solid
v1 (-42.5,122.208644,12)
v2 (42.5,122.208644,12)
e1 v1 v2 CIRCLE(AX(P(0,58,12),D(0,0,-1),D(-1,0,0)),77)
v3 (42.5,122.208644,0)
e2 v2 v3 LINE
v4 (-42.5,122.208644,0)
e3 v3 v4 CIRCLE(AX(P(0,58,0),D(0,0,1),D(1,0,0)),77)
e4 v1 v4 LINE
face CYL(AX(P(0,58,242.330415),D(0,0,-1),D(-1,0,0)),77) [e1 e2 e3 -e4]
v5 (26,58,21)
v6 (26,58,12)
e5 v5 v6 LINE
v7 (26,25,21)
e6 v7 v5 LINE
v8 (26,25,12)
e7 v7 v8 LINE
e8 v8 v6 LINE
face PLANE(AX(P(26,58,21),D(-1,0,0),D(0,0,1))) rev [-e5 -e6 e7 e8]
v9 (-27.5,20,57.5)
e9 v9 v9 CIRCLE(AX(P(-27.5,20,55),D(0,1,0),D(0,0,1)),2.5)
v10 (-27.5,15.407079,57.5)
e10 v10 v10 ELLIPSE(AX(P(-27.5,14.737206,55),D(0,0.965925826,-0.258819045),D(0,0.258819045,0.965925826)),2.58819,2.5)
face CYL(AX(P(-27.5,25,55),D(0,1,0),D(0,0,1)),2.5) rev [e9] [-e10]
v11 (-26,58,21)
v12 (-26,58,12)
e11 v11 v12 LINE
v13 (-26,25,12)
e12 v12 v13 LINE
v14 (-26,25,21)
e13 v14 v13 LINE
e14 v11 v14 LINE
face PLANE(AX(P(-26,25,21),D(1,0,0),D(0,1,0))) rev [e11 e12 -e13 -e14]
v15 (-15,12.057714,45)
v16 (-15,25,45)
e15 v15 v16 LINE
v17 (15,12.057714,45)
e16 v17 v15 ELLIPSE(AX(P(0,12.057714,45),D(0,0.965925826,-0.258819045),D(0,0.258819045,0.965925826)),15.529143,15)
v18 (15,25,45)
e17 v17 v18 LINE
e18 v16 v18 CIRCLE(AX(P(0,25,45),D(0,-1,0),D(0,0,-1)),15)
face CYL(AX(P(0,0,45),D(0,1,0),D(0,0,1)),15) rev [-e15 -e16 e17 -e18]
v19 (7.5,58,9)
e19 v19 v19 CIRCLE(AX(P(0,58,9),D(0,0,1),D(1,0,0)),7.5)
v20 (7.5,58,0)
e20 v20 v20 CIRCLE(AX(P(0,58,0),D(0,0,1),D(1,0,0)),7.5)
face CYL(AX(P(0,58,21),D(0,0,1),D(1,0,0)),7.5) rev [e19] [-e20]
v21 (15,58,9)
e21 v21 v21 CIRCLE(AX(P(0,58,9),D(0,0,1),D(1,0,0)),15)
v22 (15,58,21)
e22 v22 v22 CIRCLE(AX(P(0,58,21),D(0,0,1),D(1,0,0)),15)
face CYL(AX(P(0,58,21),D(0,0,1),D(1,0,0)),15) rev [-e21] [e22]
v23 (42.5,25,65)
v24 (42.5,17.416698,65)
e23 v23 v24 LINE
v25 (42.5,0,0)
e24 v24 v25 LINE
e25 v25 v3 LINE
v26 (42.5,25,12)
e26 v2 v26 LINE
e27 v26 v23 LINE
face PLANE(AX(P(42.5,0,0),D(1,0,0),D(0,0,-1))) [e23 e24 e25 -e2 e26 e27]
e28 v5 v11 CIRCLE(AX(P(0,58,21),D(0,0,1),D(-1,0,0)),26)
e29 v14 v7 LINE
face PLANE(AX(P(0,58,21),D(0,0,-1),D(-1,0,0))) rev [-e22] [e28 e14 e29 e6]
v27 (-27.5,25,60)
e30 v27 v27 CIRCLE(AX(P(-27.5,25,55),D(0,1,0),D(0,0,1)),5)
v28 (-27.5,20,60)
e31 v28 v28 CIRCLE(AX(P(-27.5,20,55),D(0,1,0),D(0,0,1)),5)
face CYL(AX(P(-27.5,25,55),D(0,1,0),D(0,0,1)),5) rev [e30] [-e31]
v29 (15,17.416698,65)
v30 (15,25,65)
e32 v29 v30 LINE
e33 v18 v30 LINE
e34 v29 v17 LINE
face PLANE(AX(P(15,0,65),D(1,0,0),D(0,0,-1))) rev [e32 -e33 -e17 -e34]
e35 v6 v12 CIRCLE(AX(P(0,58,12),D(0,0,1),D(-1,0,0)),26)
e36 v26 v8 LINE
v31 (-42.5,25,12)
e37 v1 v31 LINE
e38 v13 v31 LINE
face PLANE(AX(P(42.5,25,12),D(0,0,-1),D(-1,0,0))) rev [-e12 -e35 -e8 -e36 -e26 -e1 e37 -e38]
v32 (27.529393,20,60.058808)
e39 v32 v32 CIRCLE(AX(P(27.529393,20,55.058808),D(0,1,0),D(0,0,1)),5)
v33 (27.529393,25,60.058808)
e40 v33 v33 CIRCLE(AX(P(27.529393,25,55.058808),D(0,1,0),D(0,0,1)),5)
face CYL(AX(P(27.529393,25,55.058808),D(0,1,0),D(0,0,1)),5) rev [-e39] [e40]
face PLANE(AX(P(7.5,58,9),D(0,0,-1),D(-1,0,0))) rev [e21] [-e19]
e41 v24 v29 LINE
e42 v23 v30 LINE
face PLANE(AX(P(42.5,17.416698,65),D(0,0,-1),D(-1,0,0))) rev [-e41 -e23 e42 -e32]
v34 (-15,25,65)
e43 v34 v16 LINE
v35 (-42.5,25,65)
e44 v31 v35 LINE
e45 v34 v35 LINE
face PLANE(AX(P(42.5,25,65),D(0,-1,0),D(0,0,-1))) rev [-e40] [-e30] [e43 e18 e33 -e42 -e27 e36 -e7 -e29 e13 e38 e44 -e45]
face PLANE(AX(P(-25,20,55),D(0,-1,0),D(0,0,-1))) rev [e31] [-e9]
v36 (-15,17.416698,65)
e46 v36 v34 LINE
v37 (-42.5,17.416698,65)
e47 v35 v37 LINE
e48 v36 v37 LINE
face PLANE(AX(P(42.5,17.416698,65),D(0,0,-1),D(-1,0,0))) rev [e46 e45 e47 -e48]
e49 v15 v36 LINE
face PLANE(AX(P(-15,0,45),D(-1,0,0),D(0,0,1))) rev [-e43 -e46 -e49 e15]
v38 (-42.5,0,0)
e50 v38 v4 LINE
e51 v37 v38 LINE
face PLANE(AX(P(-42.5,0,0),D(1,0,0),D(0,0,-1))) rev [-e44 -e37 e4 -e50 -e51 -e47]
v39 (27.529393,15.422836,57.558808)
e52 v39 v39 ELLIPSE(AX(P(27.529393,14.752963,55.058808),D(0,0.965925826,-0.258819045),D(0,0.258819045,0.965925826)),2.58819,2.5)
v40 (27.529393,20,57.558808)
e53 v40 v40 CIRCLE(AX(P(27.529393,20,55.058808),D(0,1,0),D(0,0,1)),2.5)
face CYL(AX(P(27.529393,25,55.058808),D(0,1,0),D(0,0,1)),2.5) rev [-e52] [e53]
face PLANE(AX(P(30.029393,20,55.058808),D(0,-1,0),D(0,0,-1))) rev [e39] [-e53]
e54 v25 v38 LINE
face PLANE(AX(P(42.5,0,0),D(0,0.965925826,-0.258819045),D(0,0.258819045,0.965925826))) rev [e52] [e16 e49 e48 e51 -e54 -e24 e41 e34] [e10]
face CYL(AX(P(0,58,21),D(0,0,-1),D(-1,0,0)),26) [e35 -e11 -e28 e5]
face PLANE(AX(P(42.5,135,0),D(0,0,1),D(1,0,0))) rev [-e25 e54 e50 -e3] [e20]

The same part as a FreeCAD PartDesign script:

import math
import FreeCAD as App
import Part
import Sketcher

V = App.Vector
Q = App.Units.Quantity


def add_polygon(sketch, points):
    """Adds a closed chain of lines whose ends are joined by coincident constraints."""
    first, n = sketch.GeometryCount, len(points)
    for a, b in zip(points, points[1:] + points[:1]):
        sketch.addGeometry(Part.LineSegment(App.Vector(*a, 0), App.Vector(*b, 0)), False)
    for i in range(n):
        sketch.addConstraint(Sketcher.Constraint("Coincident", first + i, 2, first + (i + 1) % n, 1))

doc = App.newDocument("Part")
body = doc.addObject("PartDesign::Body", "Body")

sketch1 = body.newObject("Sketcher::SketchObject", "Sketch")
sketch1.AttachmentSupport = (doc.getObject("YZ_Plane"), [""])
sketch1.MapMode = "FlatFace"
add_polygon(sketch1, [(17, 65), (0, 0), (135, 0), (135, 12), (25, 12), (25, 65)])
sketch1.addConstraint([
    Sketcher.Constraint("Horizontal", 1),
    Sketcher.Constraint("Vertical", 2),
    Sketcher.Constraint("Horizontal", 3),
    Sketcher.Constraint("Vertical", 4),
    Sketcher.Constraint("Horizontal", 5),
    Sketcher.Constraint("Coincident", 0, 2, -1, 1),
    Sketcher.Constraint("DistanceX", 1, 1, 1, 2, Q("135 mm")),
    Sketcher.Constraint("DistanceX", 3, 2, 3, 1, Q("110 mm")),
    Sketcher.Constraint("DistanceY", 2, 1, 2, 2, Q("12 mm")),
    Sketcher.Constraint("DistanceY", 4, 1, 4, 2, Q("53 mm")),
    Sketcher.Constraint("Angle", 0, Q("-105 deg")),
])
pad1 = body.newObject("PartDesign::Pad", "Pad")
pad1.Profile = sketch1
pad1.Length = 85
pad1.Midplane = True

sketch2 = body.newObject("Sketcher::SketchObject", "Sketch001")
sketch2.AttachmentSupport = (doc.getObject("XY_Plane"), [""])
sketch2.MapMode = "FlatFace"
sketch2.AttachmentOffset = App.Placement(V(0, 0, 12), App.Rotation())
sketch2.addGeometry([
    Part.LineSegment(V(-299, -48, 0), V(-42, 122, 0)),
    Part.ArcOfCircle(Part.Circle(V(0, 58, 0), V(0, 0, 1), 77), math.radians(56), math.radians(124)),
    Part.LineSegment(V(42, 122, 0), V(299, -48, 0)),
    Part.LineSegment(V(299, -48, 0), V(299, 568, 0)),
    Part.LineSegment(V(299, 568, 0), V(-299, 568, 0)),
    Part.LineSegment(V(-299, 568, 0), V(-299, -48, 0)),
], False)
sketch2.addConstraint([
    Sketcher.Constraint("Tangent", 0, 2, 1, 2),
    Sketcher.Constraint("Tangent", 1, 1, 2, 1),
    Sketcher.Constraint("Coincident", 2, 2, 3, 1),
    Sketcher.Constraint("Coincident", 3, 2, 4, 1),
    Sketcher.Constraint("Coincident", 4, 2, 5, 1),
    Sketcher.Constraint("Coincident", 5, 2, 0, 1),
    Sketcher.Constraint("Vertical", 3),
    Sketcher.Constraint("Horizontal", 4),
    Sketcher.Constraint("Vertical", 5),
    Sketcher.Constraint("Symmetric", 0, 2, 1, 1, -2),
    Sketcher.Constraint("Horizontal", 2, 2, 5, 2),
    Sketcher.Constraint("Radius", 1, Q("77 mm")),
    Sketcher.Constraint("DistanceY", -1, 1, 1, 3, Q("58 mm")),
    Sketcher.Constraint("DistanceX", 0, 2, 1, 1, Q("85 mm")),
    Sketcher.Constraint("DistanceX", 4, 2, 4, 1, Q("598.2095 mm")),
    Sketcher.Constraint("DistanceY", 1, 1, 3, 2, Q("445.600899 mm")),
])
pocket1 = body.newObject("PartDesign::Pocket", "Pocket")
pocket1.Profile = sketch2
pocket1.Type = "ThroughAll"
pocket1.Midplane = True

sketch3 = body.newObject("Sketcher::SketchObject", "Sketch002")
sketch3.AttachmentSupport = (doc.getObject("XY_Plane"), [""])
sketch3.MapMode = "FlatFace"
sketch3.AttachmentOffset = App.Placement(V(0, 0, 12), App.Rotation())
sketch3.addGeometry([
    Part.LineSegment(V(-26, 58, 0), V(-26, 25, 0)),
    Part.LineSegment(V(-26, 25, 0), V(26, 25, 0)),
    Part.LineSegment(V(26, 25, 0), V(26, 58, 0)),
    Part.ArcOfCircle(Part.Circle(V(0, 58, 0), V(0, 0, 1), 26), math.radians(0), math.radians(180)),
], False)
sketch3.addConstraint([
    Sketcher.Constraint("Coincident", 0, 2, 1, 1),
    Sketcher.Constraint("Coincident", 1, 2, 2, 1),
    Sketcher.Constraint("Tangent", 2, 2, 3, 1),
    Sketcher.Constraint("Tangent", 3, 2, 0, 1),
    Sketcher.Constraint("Vertical", 0),
    Sketcher.Constraint("Horizontal", 1),
    Sketcher.Constraint("Vertical", 2),
    Sketcher.Constraint("PointOnObject", 3, 3, -2),
    Sketcher.Constraint("Radius", 3, Q("26 mm")),
    Sketcher.Constraint("DistanceY", 0, 2, 0, 1, Q("33 mm")),
    Sketcher.Constraint("DistanceY", -1, 1, 3, 3, Q("58 mm")),
])
pad2 = body.newObject("PartDesign::Pad", "Pad001")
pad2.Profile = sketch3
pad2.Length = 9

sketch4 = body.newObject("Sketcher::SketchObject", "Sketch003")
sketch4.AttachmentSupport = (doc.getObject("XY_Plane"), [""])
sketch4.MapMode = "FlatFace"
sketch4.AttachmentOffset = App.Placement(V(0, 0, 21), App.Rotation())
sketch4.addGeometry(Part.Circle(V(0, 58, 0), V(0, 0, 1), 8), False)
sketch4.addConstraint([
    Sketcher.Constraint("PointOnObject", 0, 3, -2),
    Sketcher.Constraint("Diameter", 0, Q("15 mm")),
    Sketcher.Constraint("DistanceY", -1, 1, 0, 3, Q("58 mm")),
])
doc.recompute()
hole = body.newObject("PartDesign::Hole", "Hole")
hole.Profile = sketch4
hole.ThreadType = "None"
hole.Diameter = 15
hole.DepthType = "ThroughAll"
hole.HoleCutType = "Counterbore"
hole.HoleCutDiameter = 30
hole.HoleCutDepth = 12

sketch5 = body.newObject("Sketcher::SketchObject", "Sketch004")
sketch5.AttachmentSupport = (doc.getObject("XZ_Plane"), [""])
sketch5.MapMode = "FlatFace"
sketch5.AttachmentOffset = App.Placement(V(0, 0, -25), App.Rotation())
sketch5.addGeometry([
    Part.LineSegment(V(15, 65, 0), V(15, 45, 0)),
    Part.ArcOfCircle(Part.Circle(V(0, 45, 0), V(0, 0, 1), 15), math.radians(180), math.radians(360)),
    Part.LineSegment(V(-15, 45, 0), V(-15, 65, 0)),
    Part.LineSegment(V(-15, 65, 0), V(15, 65, 0)),
], False)
sketch5.addConstraint([
    Sketcher.Constraint("Tangent", 0, 2, 1, 2),
    Sketcher.Constraint("Tangent", 1, 1, 2, 1),
    Sketcher.Constraint("Coincident", 2, 2, 3, 1),
    Sketcher.Constraint("Coincident", 3, 2, 0, 1),
    Sketcher.Constraint("Vertical", 0),
    Sketcher.Constraint("Vertical", 2),
    Sketcher.Constraint("Horizontal", 3),
    Sketcher.Constraint("PointOnObject", 1, 3, -2),
    Sketcher.Constraint("Radius", 1, Q("15 mm")),
    Sketcher.Constraint("DistanceY", 0, 2, 0, 1, Q("20 mm")),
    Sketcher.Constraint("DistanceY", -1, 1, 1, 3, Q("45 mm")),
])
pocket2 = body.newObject("PartDesign::Pocket", "Pocket001")
pocket2.Profile = sketch5
pocket2.Type = "ThroughAll"
pocket2.Midplane = True

sketch6 = body.newObject("Sketcher::SketchObject", "Sketch005")
sketch6.AttachmentSupport = (doc.getObject("XZ_Plane"), [""])
sketch6.MapMode = "FlatFace"
sketch6.AttachmentOffset = App.Placement(V(0, 0, -25), App.Rotation())
sketch6.addGeometry([
    Part.Circle(V(0, 60, 0), V(0, 0, 1), 2.5),
    Part.Circle(V(-27.5, 55, 0), V(0, 0, 1), 2.5),
    Part.Circle(V(-0.1, 59.8, 0), V(0, 0, 1), 2.5),
    Part.Circle(V(27.5, 55.1, 0), V(0, 0, 1), 2.5),
], False)
sketch6.addConstraint([
    Sketcher.Constraint("Equal", 0, 1),
    Sketcher.Constraint("Equal", 1, 2),
    Sketcher.Constraint("Equal", 2, 3),
    Sketcher.Constraint("PointOnObject", 0, 3, -2),
    Sketcher.Constraint("Diameter", 0, Q("5 mm")),
    Sketcher.Constraint("DistanceY", -1, 1, 0, 3, Q("60 mm")),
    Sketcher.Constraint("DistanceY", -1, 1, 1, 3, Q("55 mm")),
    Sketcher.Constraint("DistanceX", 1, 3, -1, 1, Q("27.5 mm")),
    Sketcher.Constraint("DistanceY", -1, 1, 3, 3, Q("55.058808 mm")),
    Sketcher.Constraint("DistanceX", 2, 3, 3, 3, Q("27.61436 mm")),
    Sketcher.Constraint("DistanceX", 2, 3, -1, 1, Q("0.084967 mm")),
    Sketcher.Constraint("DistanceY", -1, 1, 2, 3, Q("59.816975 mm")),
])
doc.recompute()
hole2 = body.newObject("PartDesign::Hole", "Hole001")
hole2.Profile = sketch6
hole2.ThreadType = "None"
hole2.Diameter = 5
hole2.DepthType = "ThroughAll"
hole2.HoleCutType = "Counterbore"
hole2.HoleCutDiameter = 10
hole2.HoleCutDepth = 5
hole2.Reversed = True

doc.recompute()
